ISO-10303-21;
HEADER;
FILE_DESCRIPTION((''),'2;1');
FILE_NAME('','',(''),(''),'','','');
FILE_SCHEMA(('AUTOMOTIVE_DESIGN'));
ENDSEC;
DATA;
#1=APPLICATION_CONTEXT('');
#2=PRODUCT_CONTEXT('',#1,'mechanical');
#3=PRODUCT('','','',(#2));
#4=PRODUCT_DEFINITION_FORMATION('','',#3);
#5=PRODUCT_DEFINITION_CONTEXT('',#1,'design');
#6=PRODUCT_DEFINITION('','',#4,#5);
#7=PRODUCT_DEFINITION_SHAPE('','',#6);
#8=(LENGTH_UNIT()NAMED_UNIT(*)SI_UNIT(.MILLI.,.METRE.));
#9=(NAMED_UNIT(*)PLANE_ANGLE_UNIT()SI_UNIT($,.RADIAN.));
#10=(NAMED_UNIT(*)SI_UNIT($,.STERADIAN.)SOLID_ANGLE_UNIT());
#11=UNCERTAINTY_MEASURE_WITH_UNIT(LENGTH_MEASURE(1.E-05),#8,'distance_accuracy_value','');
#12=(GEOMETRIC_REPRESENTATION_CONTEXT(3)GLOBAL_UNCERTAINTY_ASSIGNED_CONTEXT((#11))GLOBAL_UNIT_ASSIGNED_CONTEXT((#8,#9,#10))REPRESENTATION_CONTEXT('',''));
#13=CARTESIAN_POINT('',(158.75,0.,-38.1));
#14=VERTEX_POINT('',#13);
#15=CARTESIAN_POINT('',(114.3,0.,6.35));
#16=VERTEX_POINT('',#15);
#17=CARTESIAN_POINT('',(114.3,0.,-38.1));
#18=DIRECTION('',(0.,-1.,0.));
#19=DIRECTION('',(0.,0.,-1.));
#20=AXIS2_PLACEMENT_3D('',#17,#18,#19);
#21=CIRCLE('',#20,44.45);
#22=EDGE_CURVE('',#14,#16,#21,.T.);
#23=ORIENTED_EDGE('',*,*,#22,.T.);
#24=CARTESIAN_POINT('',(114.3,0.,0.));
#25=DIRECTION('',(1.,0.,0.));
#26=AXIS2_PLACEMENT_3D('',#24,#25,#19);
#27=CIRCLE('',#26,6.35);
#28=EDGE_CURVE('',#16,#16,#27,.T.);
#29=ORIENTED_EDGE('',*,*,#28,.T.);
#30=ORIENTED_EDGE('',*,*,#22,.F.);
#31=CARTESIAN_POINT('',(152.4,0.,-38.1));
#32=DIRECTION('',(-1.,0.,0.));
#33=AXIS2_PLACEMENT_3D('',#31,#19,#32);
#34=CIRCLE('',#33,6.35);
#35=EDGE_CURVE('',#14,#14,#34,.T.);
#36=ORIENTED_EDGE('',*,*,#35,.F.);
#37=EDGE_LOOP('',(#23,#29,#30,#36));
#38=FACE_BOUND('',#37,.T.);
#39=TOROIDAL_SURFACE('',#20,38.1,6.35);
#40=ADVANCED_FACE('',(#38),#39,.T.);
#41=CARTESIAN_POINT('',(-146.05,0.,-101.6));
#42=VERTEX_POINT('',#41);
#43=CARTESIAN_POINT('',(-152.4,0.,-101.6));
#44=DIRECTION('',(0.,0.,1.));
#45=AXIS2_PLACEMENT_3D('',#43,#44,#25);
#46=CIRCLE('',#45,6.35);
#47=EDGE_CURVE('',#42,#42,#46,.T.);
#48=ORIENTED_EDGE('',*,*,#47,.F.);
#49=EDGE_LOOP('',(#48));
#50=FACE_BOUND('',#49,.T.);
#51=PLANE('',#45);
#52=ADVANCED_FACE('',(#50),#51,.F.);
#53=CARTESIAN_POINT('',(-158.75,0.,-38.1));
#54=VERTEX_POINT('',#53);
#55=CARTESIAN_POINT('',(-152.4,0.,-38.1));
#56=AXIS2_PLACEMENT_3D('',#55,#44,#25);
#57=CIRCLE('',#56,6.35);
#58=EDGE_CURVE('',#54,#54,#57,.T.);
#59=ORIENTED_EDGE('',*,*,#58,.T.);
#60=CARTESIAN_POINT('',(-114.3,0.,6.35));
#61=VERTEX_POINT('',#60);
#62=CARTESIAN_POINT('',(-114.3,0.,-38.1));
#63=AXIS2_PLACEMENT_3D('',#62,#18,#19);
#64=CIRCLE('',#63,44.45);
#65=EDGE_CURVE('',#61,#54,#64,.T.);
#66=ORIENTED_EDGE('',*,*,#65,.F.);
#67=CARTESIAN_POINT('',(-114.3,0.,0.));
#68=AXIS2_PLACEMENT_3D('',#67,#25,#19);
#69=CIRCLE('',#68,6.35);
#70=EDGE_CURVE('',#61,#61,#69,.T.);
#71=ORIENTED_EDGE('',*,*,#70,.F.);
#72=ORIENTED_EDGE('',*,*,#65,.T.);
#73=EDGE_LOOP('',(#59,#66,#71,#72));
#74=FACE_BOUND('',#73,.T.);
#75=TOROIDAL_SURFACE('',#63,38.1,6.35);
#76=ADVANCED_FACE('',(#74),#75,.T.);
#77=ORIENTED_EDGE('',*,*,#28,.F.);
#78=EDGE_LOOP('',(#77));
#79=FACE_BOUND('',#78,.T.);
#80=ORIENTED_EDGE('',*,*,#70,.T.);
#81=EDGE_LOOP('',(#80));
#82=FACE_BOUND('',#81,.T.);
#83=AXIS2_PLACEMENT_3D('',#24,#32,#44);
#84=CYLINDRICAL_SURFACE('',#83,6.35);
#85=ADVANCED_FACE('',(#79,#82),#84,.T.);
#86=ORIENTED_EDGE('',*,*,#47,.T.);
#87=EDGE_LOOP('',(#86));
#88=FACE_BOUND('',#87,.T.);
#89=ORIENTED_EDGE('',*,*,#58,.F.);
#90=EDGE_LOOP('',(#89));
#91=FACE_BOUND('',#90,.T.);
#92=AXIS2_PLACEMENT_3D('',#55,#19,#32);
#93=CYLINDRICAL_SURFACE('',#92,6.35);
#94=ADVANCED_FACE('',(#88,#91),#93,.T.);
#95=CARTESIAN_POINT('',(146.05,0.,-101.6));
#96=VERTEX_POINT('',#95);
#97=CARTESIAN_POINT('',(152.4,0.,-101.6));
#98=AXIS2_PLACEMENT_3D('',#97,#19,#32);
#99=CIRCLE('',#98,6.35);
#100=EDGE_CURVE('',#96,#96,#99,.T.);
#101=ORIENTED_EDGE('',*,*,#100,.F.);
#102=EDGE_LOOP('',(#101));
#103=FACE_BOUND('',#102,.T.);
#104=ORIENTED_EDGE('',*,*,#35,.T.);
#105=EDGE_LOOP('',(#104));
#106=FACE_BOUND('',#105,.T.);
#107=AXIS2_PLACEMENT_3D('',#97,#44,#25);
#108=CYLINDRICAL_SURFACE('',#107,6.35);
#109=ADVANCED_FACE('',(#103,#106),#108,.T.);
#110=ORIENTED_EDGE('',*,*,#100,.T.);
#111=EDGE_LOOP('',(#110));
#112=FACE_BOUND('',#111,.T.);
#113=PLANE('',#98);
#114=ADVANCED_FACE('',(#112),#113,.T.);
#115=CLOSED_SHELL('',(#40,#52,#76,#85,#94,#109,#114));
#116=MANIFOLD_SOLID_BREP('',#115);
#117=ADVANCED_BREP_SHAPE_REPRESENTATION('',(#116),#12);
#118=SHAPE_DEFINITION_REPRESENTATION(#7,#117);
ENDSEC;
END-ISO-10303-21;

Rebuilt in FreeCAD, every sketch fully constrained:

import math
import FreeCAD as App
import Part
import Sketcher
from FreeCAD import Vector
Q = App.Units.Quantity

doc = App.newDocument("Part")
body = doc.addObject("PartDesign::Body", "Body")

# Sketch on XY plane
sketch1 = doc.addObject("Sketcher::SketchObject", "Sketch")
body.addObject(sketch1)
sketch1.AttachmentSupport = (doc.XY_Plane, [""])
sketch1.MapMode = "FlatFace"
sketch1.AttachmentOffset = App.Placement(Vector(0, 0, -4 * 25.4), App.Rotation())
sketch1.addGeometry(Part.Circle(Vector(152, 0, 0), Vector(0, 0, 1), 6), False)
sketch1.addConstraint(Sketcher.Constraint("PointOnObject", 0, 3, -1))
sketch1.addConstraint(Sketcher.Constraint("Diameter", 0, Q("0.5 in")))
sketch1.addConstraint(Sketcher.Constraint("DistanceX", -1, 1, 0, 3, Q("6 in")))

# Sketch on XZ plane
sketch2 = doc.addObject("Sketcher::SketchObject", "Sketch001")
body.addObject(sketch2)
sketch2.AttachmentSupport = (doc.XZ_Plane, [""])
sketch2.MapMode = "FlatFace"
sketch2.addGeometry(Part.LineSegment(Vector(152, -102, 0), Vector(152, -38, 0)), False)
sketch2.addGeometry(Part.ArcOfCircle(Part.Circle(Vector(114, -38, 0), Vector(0, 0, 1), 38), math.radians(0), math.radians(90)), False)
sketch2.addGeometry(Part.LineSegment(Vector(114, 0, 0), Vector(-114, 0, 0)), False)
sketch2.addGeometry(Part.ArcOfCircle(Part.Circle(Vector(-114, -38, 0), Vector(0, 0, 1), 38), math.radians(90), math.radians(180)), False)
sketch2.addGeometry(Part.LineSegment(Vector(-152, -38, 0), Vector(-152, -102, 0)), False)
sketch2.addConstraint(Sketcher.Constraint("Tangent", 0, 2, 1, 1))
sketch2.addConstraint(Sketcher.Constraint("Tangent", 1, 2, 2, 1))
sketch2.addConstraint(Sketcher.Constraint("Tangent", 2, 2, 3, 1))
sketch2.addConstraint(Sketcher.Constraint("Tangent", 3, 2, 4, 1))
sketch2.addConstraint(Sketcher.Constraint("Vertical", 0))
sketch2.addConstraint(Sketcher.Constraint("Horizontal", 2))
sketch2.addConstraint(Sketcher.Constraint("Vertical", 4))
sketch2.addConstraint(Sketcher.Constraint("Equal", 1, 3))
sketch2.addConstraint(Sketcher.Constraint("Symmetric", 1, 2, 2, 2, -1, 1))
sketch2.addConstraint(Sketcher.Constraint("Horizontal", 0, 1, 4, 2))
sketch2.addConstraint(Sketcher.Constraint("Radius", 1, Q("1.5 in")))
sketch2.addConstraint(Sketcher.Constraint("DistanceX", 2, 2, 2, 1, Q("9 in")))
sketch2.addConstraint(Sketcher.Constraint("DistanceY", 0, 1, 0, 2, Q("2.5 in")))
doc.recompute()

additivepipe = doc.addObject("PartDesign::AdditivePipe", "AdditivePipe")
body.addObject(additivepipe)
additivepipe.Profile = sketch1
additivepipe.Spine = (sketch2, ["Edge1", "Edge2", "Edge3", "Edge4", "Edge5"])

doc.recompute()
